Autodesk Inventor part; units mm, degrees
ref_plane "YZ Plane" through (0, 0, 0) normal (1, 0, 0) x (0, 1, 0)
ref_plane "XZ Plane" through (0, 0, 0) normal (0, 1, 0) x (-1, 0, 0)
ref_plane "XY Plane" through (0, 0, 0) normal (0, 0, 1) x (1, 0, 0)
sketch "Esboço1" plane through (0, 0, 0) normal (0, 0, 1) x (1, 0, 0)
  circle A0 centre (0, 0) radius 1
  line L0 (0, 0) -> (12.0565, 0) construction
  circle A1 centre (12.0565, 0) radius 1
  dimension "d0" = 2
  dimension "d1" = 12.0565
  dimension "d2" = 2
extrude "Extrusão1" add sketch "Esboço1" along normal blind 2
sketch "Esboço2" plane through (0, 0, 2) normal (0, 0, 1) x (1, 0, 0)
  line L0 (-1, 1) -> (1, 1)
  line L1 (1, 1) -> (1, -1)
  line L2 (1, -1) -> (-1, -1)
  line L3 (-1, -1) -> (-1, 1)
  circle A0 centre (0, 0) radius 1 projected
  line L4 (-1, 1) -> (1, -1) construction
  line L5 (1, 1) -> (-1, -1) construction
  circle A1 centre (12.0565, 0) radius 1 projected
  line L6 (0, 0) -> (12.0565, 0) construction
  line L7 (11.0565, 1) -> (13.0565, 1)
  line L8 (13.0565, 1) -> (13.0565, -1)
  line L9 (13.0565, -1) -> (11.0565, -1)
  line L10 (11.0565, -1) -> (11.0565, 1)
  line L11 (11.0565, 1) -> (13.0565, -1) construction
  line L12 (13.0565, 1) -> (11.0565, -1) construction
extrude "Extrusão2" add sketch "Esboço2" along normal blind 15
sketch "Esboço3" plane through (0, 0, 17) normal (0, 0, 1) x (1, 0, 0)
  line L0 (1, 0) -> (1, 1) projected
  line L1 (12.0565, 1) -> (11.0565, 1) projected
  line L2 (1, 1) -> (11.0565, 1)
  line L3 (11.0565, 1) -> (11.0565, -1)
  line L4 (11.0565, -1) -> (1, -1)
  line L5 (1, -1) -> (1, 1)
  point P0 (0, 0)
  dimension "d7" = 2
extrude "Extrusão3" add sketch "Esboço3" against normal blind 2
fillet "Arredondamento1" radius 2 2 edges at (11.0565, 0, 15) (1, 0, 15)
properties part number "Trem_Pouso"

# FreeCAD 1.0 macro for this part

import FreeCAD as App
import Part
import Sketcher

V = App.Vector
Q = App.Units.Quantity


def edges_at(feature, points):
    """Names of the edges that pass closest to the given points."""
    edges = feature.Shape.Edges
    near = lambda p: min(range(len(edges)), key=lambda i: edges[i].distToShape(Part.Vertex(*p))[0])
    return sorted({f"Edge{near(p) + 1}" for p in points})

doc = App.newDocument("Part")
body = doc.addObject("PartDesign::Body", "Body")
body.AllowCompound = True

# Sketch on XY plane
sketch1 = body.newObject("Sketcher::SketchObject", "Sketch")
sketch1.AttachmentSupport = (doc.getObject("XY_Plane"), [""])
sketch1.MapMode = "FlatFace"
sketch1.addGeometry(Part.Circle(V(0, 0, 0), V(0, 0, 1), 1), False)
sketch1.addGeometry(Part.Circle(V(12.0565, 0, 0), V(0, 0, 1), 1), False)
sketch1.addConstraint(Sketcher.Constraint("Coincident", 0, 3, -1, 1))
sketch1.addConstraint(Sketcher.Constraint("Equal", 0, 1))
sketch1.addConstraint(Sketcher.Constraint("PointOnObject", 1, 3, -1))
sketch1.addConstraint(Sketcher.Constraint("Diameter", 0, Q("2 mm")))
sketch1.addConstraint(Sketcher.Constraint("DistanceX", -1, 1, 1, 3, Q("12.0565 mm")))
pad1 = body.newObject("PartDesign::Pad", "Pad")
pad1.Profile = sketch1
pad1.Length = 2

# Sketch on XY plane
sketch2 = body.newObject("Sketcher::SketchObject", "Sketch001")
sketch2.AttachmentSupport = (doc.getObject("XY_Plane"), [""])
sketch2.MapMode = "FlatFace"
sketch2.AttachmentOffset = App.Placement(V(0, 0, 2), App.Rotation())
sketch2.addGeometry(Part.LineSegment(V(-1, 1, 0), V(-1, -1, 0)), False)
sketch2.addGeometry(Part.LineSegment(V(-1, -1, 0), V(1, -1, 0)), False)
sketch2.addGeometry(Part.LineSegment(V(1, -1, 0), V(1, 1, 0)), False)
sketch2.addGeometry(Part.LineSegment(V(1, 1, 0), V(-1, 1, 0)), False)
sketch2.addGeometry(Part.LineSegment(V(13.0565, -1, 0), V(13.0565, 1, 0)), False)
sketch2.addGeometry(Part.LineSegment(V(13.0565, 1, 0), V(11.0565, 1, 0)), False)
sketch2.addGeometry(Part.LineSegment(V(11.0565, 1, 0), V(11.0565, -1, 0)), False)
sketch2.addGeometry(Part.LineSegment(V(11.0565, -1, 0), V(13.0565, -1, 0)), False)
sketch2.addConstraint(Sketcher.Constraint("Coincident", 0, 2, 1, 1))
sketch2.addConstraint(Sketcher.Constraint("Coincident", 1, 2, 2, 1))
sketch2.addConstraint(Sketcher.Constraint("Coincident", 2, 2, 3, 1))
sketch2.addConstraint(Sketcher.Constraint("Coincident", 3, 2, 0, 1))
sketch2.addConstraint(Sketcher.Constraint("Coincident", 4, 2, 5, 1))
sketch2.addConstraint(Sketcher.Constraint("Coincident", 5, 2, 6, 1))
sketch2.addConstraint(Sketcher.Constraint("Coincident", 6, 2, 7, 1))
sketch2.addConstraint(Sketcher.Constraint("Coincident", 7, 2, 4, 1))
sketch2.addConstraint(Sketcher.Constraint("Vertical", 0))
sketch2.addConstraint(Sketcher.Constraint("Horizontal", 1))
sketch2.addConstraint(Sketcher.Constraint("Vertical", 2))
sketch2.addConstraint(Sketcher.Constraint("Horizontal", 3))
sketch2.addConstraint(Sketcher.Constraint("Vertical", 4))
sketch2.addConstraint(Sketcher.Constraint("Horizontal", 5))
sketch2.addConstraint(Sketcher.Constraint("Vertical", 6))
sketch2.addConstraint(Sketcher.Constraint("Horizontal", 7))
sketch2.addConstraint(Sketcher.Constraint("Symmetric", 0, 2, 2, 2, -1, 1))
sketch2.addConstraint(Sketcher.Constraint("Horizontal", 3, 2, 4, 2))
sketch2.addConstraint(Sketcher.Constraint("Horizontal", 1, 2, 6, 2))
sketch2.addConstraint(Sketcher.Constraint("Equal", 3, 5))
sketch2.addConstraint(Sketcher.Constraint("Equal", 7, 0))
sketch2.addConstraint(Sketcher.Constraint("DistanceX", 1, 1, 1, 2, Q("2 mm")))
sketch2.addConstraint(Sketcher.Constraint("DistanceX", -1, 1, 4, 2, Q("13.0565 mm")))
pad2 = body.newObject("PartDesign::Pad", "Pad001")
pad2.Profile = sketch2
pad2.Length = 15

# Sketch on XY plane
sketch3 = body.newObject("Sketcher::SketchObject", "Sketch002")
sketch3.AttachmentSupport = (doc.getObject("XY_Plane"), [""])
sketch3.MapMode = "FlatFace"
sketch3.AttachmentOffset = App.Placement(V(0, 0, 17), App.Rotation())
sketch3.addGeometry(Part.LineSegment(V(1, 1, 0), V(1, -1, 0)), False)
sketch3.addGeometry(Part.LineSegment(V(1, -1, 0), V(11.0565, -1, 0)), False)
sketch3.addGeometry(Part.LineSegment(V(11.0565, -1, 0), V(11.0565, 1, 0)), False)
sketch3.addGeometry(Part.LineSegment(V(11.0565, 1, 0), V(1, 1, 0)), False)
sketch3.addConstraint(Sketcher.Constraint("Coincident", 0, 2, 1, 1))
sketch3.addConstraint(Sketcher.Constraint("Coincident", 1, 2, 2, 1))
sketch3.addConstraint(Sketcher.Constraint("Coincident", 2, 2, 3, 1))
sketch3.addConstraint(Sketcher.Constraint("Coincident", 3, 2, 0, 1))
sketch3.addConstraint(Sketcher.Constraint("Vertical", 0))
sketch3.addConstraint(Sketcher.Constraint("Horizontal", 1))
sketch3.addConstraint(Sketcher.Constraint("Vertical", 2))
sketch3.addConstraint(Sketcher.Constraint("Horizontal", 3))
sketch3.addConstraint(Sketcher.Constraint("DistanceY", 0, 2, 0, 1, Q("2 mm")))
sketch3.addConstraint(Sketcher.Constraint("DistanceX", -1, 1, 0, 2, Q("1 mm")))
sketch3.addConstraint(Sketcher.Constraint("DistanceY", 0, 2, -1, 1, Q("1 mm")))
sketch3.addConstraint(Sketcher.Constraint("DistanceX", 1, 1, 1, 2, Q("10.0565 mm")))
pad3 = body.newObject("PartDesign::Pad", "Pad002")
pad3.Profile = sketch3
pad3.Length = 2
pad3.Reversed = True
doc.recompute()

fillet = body.newObject("PartDesign::Fillet", "Fillet")
fillet.Base = (pad3, edges_at(pad3, [(11.056, 0, 15), (1, 0, 15)]))
fillet.Radius = 2

doc.recompute()
